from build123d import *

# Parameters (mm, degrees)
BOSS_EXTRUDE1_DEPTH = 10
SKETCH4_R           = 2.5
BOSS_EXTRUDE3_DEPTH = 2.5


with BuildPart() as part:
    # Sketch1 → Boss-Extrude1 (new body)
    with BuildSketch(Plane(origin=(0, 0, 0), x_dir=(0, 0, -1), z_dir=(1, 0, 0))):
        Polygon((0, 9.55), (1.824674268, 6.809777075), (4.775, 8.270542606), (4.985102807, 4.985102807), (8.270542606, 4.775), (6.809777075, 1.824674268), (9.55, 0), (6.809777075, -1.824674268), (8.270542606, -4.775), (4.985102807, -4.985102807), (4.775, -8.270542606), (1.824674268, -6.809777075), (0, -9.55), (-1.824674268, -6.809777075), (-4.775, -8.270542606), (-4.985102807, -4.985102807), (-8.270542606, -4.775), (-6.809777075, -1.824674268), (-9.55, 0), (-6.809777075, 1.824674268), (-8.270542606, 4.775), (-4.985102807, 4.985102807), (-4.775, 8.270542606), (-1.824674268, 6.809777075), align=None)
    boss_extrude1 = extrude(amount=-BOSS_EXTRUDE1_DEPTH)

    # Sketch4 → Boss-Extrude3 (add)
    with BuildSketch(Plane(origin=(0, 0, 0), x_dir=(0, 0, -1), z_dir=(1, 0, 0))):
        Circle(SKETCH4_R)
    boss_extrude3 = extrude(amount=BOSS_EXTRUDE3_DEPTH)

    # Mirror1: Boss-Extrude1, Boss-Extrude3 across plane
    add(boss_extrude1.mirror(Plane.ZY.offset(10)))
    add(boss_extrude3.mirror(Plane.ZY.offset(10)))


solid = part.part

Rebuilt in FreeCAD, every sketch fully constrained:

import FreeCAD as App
import Part
import Sketcher
from FreeCAD import Vector


def add_polygon(sketch, points):
    """Adds a closed chain of lines whose ends are joined by coincident constraints."""
    first, n = sketch.GeometryCount, len(points)
    for a, b in zip(points, points[1:] + points[:1]):
        sketch.addGeometry(Part.LineSegment(App.Vector(*a, 0), App.Vector(*b, 0)), False)
    for i in range(n):
        sketch.addConstraint(Sketcher.Constraint("Coincident", first + i, 2, first + (i + 1) % n, 1))

doc = App.newDocument("Part")
body = doc.addObject("PartDesign::Body", "Body")

sketch1 = body.newObject("Sketcher::SketchObject", "Sketch")
sketch1.AttachmentSupport = (doc.getObject("YZ_Plane"), [""])
sketch1.MapMode = "FlatFace"
add_polygon(sketch1, [(6.8, -1.8), (9.6, 0), (6.8, 1.8), (8.3, 4.8), (5, 5), (4.8, 8.3), (1.8, 6.8), (0, 9.6), (-1.8, 6.8), (-4.8, 8.3), (-5, 5), (-8.3, 4.8), (-6.8, 1.8), (-9.6, 0), (-6.8, -1.8), (-8.3, -4.8), (-5, -5), (-4.8, -8.3), (-1.8, -6.8), (0, -9.6), (1.8, -6.8), (4.8, -8.3), (5, -5), (8.3, -4.8)])
sketch1.addConstraint([
    Sketcher.Constraint("Symmetric", 0, 2, 12, 2, -1, 1),
    Sketcher.Constraint("Symmetric", 1, 2, 13, 2, -1, 1),
    Sketcher.Constraint("Symmetric", 2, 2, 14, 2, -1, 1),
    Sketcher.Constraint("Symmetric", 3, 2, 15, 2, -1, 1),
    Sketcher.Constraint("Symmetric", 4, 2, 16, 2, -1, 1),
    Sketcher.Constraint("Symmetric", 5, 2, 17, 2, -1, 1),
    Sketcher.Constraint("Symmetric", 6, 2, 18, 2, -1, 1),
    Sketcher.Constraint("Symmetric", 7, 2, 19, 2, -1, 1),
    Sketcher.Constraint("Symmetric", 8, 2, 20, 2, -1, 1),
    Sketcher.Constraint("Symmetric", 9, 2, 21, 2, -1, 1),
    Sketcher.Constraint("Symmetric", 10, 2, 22, 2, -1, 1),
    Sketcher.Constraint("Symmetric", 11, 2, 23, 2, -1, 1),
    Sketcher.Constraint("Symmetric", 5, 2, 7, 2, -2),
    Sketcher.Constraint("Symmetric", 4, 2, 8, 2, -2),
    Sketcher.Constraint("Symmetric", 3, 2, 9, 2, -2),
    Sketcher.Constraint("Symmetric", 2, 2, 10, 2, -2),
    Sketcher.Constraint("Symmetric", 1, 2, 11, 2, -2),
    Sketcher.Constraint("PointOnObject", 0, 2, -1),
    Sketcher.Constraint("PointOnObject", 6, 2, -2),
    Sketcher.Constraint("Perpendicular", 0, 6),
    Sketcher.Constraint("Perpendicular", 2, 8),
    Sketcher.Constraint("Perpendicular", 3, 9),
    Sketcher.Constraint("Equal", 1, 2),
    Sketcher.Constraint("Equal", 2, 3),
    Sketcher.Constraint("Equal", 3, 4),
    Sketcher.Constraint("Equal", 4, 5),
    Sketcher.Constraint("Equal", 5, 6),
    Sketcher.Constraint("DistanceX", -1, 1, 0, 2, 9.55),
    Sketcher.Constraint("DistanceX", 8, 2, 4, 2, 9.55),
    Sketcher.Constraint("Distance", 0, 3.292151),
    Sketcher.Constraint("DistanceX", 3, 2, 2, 2, 3.28544),
])
pad1 = body.newObject("PartDesign::Pad", "Pad")
pad1.Profile = sketch1
pad1.Length = 10
pad1.Reversed = True

sketch2 = body.newObject("Sketcher::SketchObject", "Sketch001")
sketch2.AttachmentSupport = (doc.getObject("YZ_Plane"), [""])
sketch2.MapMode = "FlatFace"
sketch2.addGeometry(Part.Circle(Vector(0, 0, 0), Vector(0, 0, 1), 2.5), False)
sketch2.addConstraint([
    Sketcher.Constraint("Coincident", 0, 3, -1, 1),
    Sketcher.Constraint("Diameter", 0, 5.0),
])
pad2 = body.newObject("PartDesign::Pad", "Pad001")
pad2.Profile = sketch2
pad2.Length = 2.5
doc.recompute()

datumplane = body.newObject("PartDesign::Plane", "DatumPlane")
datumplane.AttachmentSupport = (doc.getObject("YZ_Plane"), [""])
datumplane.MapMode = "FlatFace"
datumplane.AttachmentOffset = App.Placement(Vector(0, 0, -10), App.Rotation())
mirrored = body.newObject("PartDesign::Mirrored", "Mirrored")
mirrored.Originals = [pad1, pad2]
mirrored.MirrorPlane = (datumplane, [""])
body.Tip = mirrored

doc.recompute()
